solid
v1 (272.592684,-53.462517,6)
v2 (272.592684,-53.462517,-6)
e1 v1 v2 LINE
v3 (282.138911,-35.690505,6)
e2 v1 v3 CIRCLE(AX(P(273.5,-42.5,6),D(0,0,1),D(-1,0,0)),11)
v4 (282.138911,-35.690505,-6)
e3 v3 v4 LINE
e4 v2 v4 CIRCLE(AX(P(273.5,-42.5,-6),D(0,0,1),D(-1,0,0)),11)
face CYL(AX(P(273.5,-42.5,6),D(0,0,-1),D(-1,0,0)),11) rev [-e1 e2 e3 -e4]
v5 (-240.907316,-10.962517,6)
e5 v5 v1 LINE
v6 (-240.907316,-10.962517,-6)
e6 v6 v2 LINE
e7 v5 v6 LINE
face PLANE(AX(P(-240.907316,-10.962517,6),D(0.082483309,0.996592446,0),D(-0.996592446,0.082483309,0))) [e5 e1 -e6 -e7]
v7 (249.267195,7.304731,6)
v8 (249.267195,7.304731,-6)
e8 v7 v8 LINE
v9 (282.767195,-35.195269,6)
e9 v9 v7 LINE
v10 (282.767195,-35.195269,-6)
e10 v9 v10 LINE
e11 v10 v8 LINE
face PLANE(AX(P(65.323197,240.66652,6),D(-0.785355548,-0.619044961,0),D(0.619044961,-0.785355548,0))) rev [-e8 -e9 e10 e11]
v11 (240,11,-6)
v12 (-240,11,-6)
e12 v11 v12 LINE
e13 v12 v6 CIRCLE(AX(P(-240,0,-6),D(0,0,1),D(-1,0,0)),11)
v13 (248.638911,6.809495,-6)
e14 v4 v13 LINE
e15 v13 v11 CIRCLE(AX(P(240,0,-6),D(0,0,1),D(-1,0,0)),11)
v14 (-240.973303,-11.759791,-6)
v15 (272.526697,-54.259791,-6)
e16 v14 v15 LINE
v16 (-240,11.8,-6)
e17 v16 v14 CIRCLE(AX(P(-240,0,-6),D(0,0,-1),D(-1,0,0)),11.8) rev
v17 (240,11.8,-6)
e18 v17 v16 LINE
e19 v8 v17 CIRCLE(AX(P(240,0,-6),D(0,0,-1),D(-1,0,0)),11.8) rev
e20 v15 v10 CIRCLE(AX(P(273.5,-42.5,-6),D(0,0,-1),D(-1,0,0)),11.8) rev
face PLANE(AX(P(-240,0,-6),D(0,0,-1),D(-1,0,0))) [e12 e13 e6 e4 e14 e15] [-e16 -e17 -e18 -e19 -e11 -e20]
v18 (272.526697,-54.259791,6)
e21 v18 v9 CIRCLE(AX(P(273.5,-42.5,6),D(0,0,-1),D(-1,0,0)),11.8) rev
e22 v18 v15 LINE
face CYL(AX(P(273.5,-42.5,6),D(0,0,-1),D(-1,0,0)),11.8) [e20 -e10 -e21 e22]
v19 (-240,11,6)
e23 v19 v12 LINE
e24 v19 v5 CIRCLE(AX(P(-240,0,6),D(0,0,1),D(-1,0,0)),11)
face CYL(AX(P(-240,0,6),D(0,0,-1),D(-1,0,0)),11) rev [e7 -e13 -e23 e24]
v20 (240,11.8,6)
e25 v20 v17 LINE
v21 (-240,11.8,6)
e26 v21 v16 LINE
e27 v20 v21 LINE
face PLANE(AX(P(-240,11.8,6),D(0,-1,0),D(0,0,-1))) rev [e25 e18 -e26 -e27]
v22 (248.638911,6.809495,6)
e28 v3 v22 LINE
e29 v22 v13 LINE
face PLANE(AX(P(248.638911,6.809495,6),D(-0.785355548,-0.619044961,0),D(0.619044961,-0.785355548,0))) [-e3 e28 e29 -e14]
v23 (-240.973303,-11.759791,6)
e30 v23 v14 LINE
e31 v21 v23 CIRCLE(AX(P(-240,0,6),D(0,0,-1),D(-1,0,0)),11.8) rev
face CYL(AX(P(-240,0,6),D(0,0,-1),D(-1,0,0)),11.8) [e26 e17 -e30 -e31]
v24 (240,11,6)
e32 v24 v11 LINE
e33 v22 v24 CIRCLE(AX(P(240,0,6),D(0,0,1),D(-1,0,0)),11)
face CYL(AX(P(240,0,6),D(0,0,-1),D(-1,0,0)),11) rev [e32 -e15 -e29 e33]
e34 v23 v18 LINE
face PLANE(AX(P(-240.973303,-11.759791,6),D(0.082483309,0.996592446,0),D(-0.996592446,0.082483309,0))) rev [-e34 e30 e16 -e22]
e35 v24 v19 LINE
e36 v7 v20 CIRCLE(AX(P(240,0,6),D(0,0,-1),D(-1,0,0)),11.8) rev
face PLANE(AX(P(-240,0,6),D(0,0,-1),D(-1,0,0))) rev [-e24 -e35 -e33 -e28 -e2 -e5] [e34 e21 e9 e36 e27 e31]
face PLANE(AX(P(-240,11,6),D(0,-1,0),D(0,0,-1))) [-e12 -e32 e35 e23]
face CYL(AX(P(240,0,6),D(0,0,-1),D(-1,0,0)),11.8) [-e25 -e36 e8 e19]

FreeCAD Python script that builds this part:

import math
import FreeCAD as App
import Part
import Sketcher

doc = App.newDocument("Part")
body = doc.addObject("PartDesign::Body", "Body")

sketch1 = body.newObject("Sketcher::SketchObject", "Sketch")
sketch1.AttachmentSupport = (doc.getObject("XY_Plane"), [""])
sketch1.MapMode = "FlatFace"
sketch1.addGeometry([
    Part.LineSegment(App.Vector(240, 11.8, 0), App.Vector(-240, 11.8, 0)),
    Part.ArcOfCircle(Part.Circle(App.Vector(-240, 0, 0), App.Vector(0, 0, 1), 11.8), math.radians(90), math.radians(265.268679)),
    Part.LineSegment(App.Vector(-240.973303, -11.759791, 0), App.Vector(272.526697, -54.259791, 0)),
    Part.ArcOfCircle(Part.Circle(App.Vector(273.5, -42.5, 0), App.Vector(0, 0, 1), 11.8), math.radians(-94.731321), math.radians(38.246426)),
    Part.LineSegment(App.Vector(282.767195, -35.195269, 0), App.Vector(249.267195, 7.304731, 0)),
    Part.ArcOfCircle(Part.Circle(App.Vector(240, 0, 0), App.Vector(0, 0, 1), 11.8), math.radians(38.246426), math.radians(90)),
    Part.LineSegment(App.Vector(-240, 11, 0), App.Vector(240, 11, 0)),
    Part.ArcOfCircle(Part.Circle(App.Vector(240, 0, 0), App.Vector(0, 0, 1), 11), math.radians(38.246426), math.radians(90)),
    Part.LineSegment(App.Vector(248.638911, 6.809495, 0), App.Vector(282.138911, -35.690505, 0)),
    Part.ArcOfCircle(Part.Circle(App.Vector(273.5, -42.5, 0), App.Vector(0, 0, 1), 11), math.radians(-94.731321), math.radians(38.246426)),
    Part.LineSegment(App.Vector(272.592684, -53.462517, 0), App.Vector(-240.907316, -10.962517, 0)),
    Part.ArcOfCircle(Part.Circle(App.Vector(-240, 0, 0), App.Vector(0, 0, 1), 11), math.radians(90), math.radians(265.268679)),
], False)
sketch1.addConstraint([
    Sketcher.Constraint("Tangent", 0, 2, 1, 1),
    Sketcher.Constraint("Tangent", 1, 2, 2, 1),
    Sketcher.Constraint("Tangent", 2, 2, 3, 1),
    Sketcher.Constraint("Tangent", 3, 2, 4, 1),
    Sketcher.Constraint("Tangent", 4, 2, 5, 1),
    Sketcher.Constraint("Tangent", 5, 2, 0, 1),
    Sketcher.Constraint("Tangent", 6, 2, 7, 2),
    Sketcher.Constraint("Tangent", 7, 1, 8, 1),
    Sketcher.Constraint("Tangent", 8, 2, 9, 2),
    Sketcher.Constraint("Tangent", 9, 1, 10, 1),
    Sketcher.Constraint("Tangent", 10, 2, 11, 2),
    Sketcher.Constraint("Tangent", 11, 1, 6, 1),
    Sketcher.Constraint("Horizontal", 0),
    Sketcher.Constraint("Horizontal", 6),
    Sketcher.Constraint("Coincident", 7, 3, 5, 3),
    Sketcher.Constraint("Coincident", 9, 3, 3, 3),
    Sketcher.Constraint("Coincident", 11, 3, 1, 3),
    Sketcher.Constraint("Equal", 1, 3),
    Sketcher.Constraint("Equal", 3, 5),
    Sketcher.Constraint("Equal", 7, 9),
    Sketcher.Constraint("Symmetric", 1, 3, 5, 3, -1, 1),
    Sketcher.Constraint("Radius", 7, 11.0),
    Sketcher.Constraint("Radius", 1, 11.8),
    Sketcher.Constraint("DistanceX", 0, 2, 0, 1, 480.0),
    Sketcher.Constraint("DistanceX", -1, 1, 3, 3, 273.5),
    Sketcher.Constraint("DistanceY", 3, 3, -1, 1, 42.5),
])
pad1 = body.newObject("PartDesign::Pad", "Pad")
pad1.Profile = sketch1
pad1.Length = 12
pad1.Midplane = True

doc.recompute()
